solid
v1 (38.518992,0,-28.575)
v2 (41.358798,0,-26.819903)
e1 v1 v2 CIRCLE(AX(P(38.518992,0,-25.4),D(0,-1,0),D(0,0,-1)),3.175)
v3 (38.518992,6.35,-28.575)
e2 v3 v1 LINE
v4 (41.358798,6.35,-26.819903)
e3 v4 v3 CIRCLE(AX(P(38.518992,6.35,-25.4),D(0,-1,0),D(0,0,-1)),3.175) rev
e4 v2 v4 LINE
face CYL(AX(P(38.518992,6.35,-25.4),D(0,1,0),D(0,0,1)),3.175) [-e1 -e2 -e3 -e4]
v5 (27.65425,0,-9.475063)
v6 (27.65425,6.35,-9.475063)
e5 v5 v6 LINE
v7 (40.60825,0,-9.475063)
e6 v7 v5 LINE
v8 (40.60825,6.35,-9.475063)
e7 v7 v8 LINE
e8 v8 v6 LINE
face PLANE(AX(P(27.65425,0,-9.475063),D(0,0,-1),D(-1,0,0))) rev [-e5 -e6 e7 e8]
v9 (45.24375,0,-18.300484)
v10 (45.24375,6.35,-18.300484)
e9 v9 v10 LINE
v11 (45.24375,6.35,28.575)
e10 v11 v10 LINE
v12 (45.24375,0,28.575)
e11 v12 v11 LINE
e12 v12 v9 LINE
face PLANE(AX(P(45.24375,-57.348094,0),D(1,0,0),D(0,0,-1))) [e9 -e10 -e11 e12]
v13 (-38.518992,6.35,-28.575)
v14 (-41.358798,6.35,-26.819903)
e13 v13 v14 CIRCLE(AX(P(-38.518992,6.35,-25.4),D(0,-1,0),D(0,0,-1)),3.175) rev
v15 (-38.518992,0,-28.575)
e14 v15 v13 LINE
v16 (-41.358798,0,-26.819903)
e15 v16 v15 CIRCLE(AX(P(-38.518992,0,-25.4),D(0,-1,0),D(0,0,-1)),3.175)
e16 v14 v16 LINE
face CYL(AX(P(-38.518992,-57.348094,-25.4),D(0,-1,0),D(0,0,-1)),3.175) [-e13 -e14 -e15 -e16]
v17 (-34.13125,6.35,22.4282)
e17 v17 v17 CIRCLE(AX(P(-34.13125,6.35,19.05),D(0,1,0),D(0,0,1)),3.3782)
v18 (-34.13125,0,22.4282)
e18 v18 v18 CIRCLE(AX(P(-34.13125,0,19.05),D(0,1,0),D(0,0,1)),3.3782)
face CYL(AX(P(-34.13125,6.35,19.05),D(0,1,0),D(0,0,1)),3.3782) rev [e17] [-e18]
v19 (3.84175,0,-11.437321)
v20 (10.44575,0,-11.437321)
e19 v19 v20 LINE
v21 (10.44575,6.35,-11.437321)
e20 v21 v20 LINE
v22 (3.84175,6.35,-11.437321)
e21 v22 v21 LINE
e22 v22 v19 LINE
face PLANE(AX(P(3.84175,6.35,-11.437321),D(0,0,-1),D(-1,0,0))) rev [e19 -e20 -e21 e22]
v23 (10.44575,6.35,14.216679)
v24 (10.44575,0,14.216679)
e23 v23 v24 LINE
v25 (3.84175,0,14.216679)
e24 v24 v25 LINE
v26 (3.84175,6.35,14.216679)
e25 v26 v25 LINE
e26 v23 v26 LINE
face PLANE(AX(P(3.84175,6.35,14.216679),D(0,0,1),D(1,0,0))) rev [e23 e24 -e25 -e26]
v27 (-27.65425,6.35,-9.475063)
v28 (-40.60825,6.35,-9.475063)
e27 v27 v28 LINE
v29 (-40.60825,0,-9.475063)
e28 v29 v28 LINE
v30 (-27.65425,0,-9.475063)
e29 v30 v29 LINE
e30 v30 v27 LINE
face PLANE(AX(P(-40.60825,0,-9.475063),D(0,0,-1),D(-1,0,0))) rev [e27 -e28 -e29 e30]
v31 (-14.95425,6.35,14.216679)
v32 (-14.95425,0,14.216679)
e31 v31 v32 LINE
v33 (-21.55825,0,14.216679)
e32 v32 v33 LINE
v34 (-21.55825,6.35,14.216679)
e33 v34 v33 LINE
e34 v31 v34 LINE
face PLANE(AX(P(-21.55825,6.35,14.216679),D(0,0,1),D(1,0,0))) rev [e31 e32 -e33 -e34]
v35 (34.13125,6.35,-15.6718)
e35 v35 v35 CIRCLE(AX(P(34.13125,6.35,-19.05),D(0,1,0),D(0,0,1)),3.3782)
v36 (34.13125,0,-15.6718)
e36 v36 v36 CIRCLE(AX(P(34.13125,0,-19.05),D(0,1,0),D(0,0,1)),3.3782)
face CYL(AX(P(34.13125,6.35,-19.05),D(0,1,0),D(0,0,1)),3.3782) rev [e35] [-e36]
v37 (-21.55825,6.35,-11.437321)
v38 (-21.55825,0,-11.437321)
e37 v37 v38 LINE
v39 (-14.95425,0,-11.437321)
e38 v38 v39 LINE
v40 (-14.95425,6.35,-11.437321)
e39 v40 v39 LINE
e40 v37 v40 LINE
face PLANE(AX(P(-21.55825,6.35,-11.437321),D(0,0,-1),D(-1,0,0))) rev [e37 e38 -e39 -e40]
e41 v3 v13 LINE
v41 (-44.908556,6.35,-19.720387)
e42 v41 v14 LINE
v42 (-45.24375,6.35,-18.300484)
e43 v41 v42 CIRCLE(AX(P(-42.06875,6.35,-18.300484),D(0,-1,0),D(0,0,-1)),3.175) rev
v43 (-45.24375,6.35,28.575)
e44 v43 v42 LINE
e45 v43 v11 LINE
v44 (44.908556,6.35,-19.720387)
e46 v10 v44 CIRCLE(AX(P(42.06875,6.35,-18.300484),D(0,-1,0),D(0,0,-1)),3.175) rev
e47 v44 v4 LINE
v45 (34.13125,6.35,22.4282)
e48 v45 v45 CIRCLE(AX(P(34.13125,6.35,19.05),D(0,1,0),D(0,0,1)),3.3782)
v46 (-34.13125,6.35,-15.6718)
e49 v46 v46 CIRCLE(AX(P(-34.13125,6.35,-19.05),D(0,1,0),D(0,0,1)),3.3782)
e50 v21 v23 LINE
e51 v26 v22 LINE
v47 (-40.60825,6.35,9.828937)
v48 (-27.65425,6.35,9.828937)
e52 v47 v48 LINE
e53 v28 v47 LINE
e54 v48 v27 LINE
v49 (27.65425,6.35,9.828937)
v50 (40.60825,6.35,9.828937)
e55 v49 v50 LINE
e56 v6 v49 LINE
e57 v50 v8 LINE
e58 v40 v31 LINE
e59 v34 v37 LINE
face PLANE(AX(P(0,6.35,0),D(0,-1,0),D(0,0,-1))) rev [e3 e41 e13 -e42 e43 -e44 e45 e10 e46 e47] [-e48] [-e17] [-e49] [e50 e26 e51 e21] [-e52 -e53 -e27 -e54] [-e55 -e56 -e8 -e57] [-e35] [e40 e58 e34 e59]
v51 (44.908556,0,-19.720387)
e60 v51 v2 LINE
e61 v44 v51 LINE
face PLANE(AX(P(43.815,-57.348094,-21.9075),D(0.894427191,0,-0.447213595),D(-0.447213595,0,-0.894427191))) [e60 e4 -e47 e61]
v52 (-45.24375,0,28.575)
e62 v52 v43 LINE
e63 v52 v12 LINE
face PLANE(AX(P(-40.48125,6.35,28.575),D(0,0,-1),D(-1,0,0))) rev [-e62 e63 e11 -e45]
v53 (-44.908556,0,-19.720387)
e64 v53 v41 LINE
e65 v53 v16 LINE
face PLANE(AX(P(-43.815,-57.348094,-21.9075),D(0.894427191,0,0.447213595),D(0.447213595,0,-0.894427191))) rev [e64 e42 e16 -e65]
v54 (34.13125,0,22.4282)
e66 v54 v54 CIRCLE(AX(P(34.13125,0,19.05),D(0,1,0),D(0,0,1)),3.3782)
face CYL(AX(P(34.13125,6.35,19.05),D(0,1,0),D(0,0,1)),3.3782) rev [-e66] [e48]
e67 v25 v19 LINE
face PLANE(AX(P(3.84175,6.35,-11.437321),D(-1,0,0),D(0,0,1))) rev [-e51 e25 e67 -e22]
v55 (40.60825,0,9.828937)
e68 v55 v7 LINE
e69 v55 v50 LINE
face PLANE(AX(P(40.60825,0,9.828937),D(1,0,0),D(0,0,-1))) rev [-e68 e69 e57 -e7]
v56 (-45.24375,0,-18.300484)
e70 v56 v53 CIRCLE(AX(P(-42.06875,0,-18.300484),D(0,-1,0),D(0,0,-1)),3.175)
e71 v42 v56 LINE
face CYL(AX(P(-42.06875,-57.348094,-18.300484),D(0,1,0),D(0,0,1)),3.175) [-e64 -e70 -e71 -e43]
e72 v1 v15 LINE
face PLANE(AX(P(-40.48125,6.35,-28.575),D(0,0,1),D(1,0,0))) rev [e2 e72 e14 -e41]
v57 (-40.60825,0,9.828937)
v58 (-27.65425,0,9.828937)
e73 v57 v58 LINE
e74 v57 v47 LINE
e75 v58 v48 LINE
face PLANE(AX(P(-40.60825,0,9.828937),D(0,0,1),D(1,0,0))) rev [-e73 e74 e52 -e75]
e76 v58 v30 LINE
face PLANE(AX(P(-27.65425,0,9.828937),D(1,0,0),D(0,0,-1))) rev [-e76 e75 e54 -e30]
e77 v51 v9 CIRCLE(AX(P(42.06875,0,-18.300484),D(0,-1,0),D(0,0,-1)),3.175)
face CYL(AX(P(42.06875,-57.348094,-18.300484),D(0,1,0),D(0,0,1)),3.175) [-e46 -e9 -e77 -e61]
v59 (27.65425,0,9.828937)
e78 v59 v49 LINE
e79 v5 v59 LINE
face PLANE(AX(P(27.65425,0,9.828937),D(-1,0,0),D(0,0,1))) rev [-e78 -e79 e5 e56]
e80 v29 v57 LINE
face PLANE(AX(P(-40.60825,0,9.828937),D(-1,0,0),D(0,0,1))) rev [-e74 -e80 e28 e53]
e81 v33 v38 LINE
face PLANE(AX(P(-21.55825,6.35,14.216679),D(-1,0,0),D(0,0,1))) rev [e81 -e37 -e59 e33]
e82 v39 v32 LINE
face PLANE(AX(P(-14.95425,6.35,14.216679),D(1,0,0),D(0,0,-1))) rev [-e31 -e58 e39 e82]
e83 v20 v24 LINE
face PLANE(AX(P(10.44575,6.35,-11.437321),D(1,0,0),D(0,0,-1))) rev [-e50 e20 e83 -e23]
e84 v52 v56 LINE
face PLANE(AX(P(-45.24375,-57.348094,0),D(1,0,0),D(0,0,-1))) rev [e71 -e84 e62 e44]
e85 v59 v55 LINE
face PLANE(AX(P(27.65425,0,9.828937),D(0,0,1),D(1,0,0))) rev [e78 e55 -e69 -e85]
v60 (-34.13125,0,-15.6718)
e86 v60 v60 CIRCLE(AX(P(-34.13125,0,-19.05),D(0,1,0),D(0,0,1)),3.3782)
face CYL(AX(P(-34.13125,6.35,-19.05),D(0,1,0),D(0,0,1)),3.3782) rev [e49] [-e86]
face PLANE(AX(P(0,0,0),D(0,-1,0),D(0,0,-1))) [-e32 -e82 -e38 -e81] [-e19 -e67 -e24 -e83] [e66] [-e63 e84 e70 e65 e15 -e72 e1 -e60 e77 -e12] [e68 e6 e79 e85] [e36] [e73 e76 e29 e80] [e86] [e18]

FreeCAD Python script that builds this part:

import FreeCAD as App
import Part
import Sketcher
Q = App.Units.Quantity


def edges_at(feature, points):
    """Names of the edges that pass closest to the given points."""
    edges = feature.Shape.Edges
    near = lambda p: min(range(len(edges)), key=lambda i: edges[i].distToShape(Part.Vertex(*p))[0])
    return sorted({f"Edge{near(p) + 1}" for p in points})

doc = App.newDocument("Part")
body = doc.addObject("PartDesign::Body", "Body")

# Sketch on XZ plane
sketch1 = body.newObject("Sketcher::SketchObject", "Sketch")
sketch1.AttachmentSupport = (doc.getObject("XZ_Plane"), [""])
sketch1.MapMode = "FlatFace"
sketch1.addGeometry([
    Part.LineSegment(App.Vector(-40, -29, 0), App.Vector(-40, 29, 0)),
    Part.LineSegment(App.Vector(-40, 29, 0), App.Vector(40, 29, 0)),
    Part.LineSegment(App.Vector(40, 29, 0), App.Vector(40, -29, 0)),
    Part.LineSegment(App.Vector(40, -29, 0), App.Vector(-40, -29, 0)),
], False)
sketch1.addConstraint([
    Sketcher.Constraint("Coincident", 0, 2, 1, 1),
    Sketcher.Constraint("Coincident", 1, 2, 2, 1),
    Sketcher.Constraint("Coincident", 2, 2, 3, 1),
    Sketcher.Constraint("Coincident", 3, 2, 0, 1),
    Sketcher.Constraint("Vertical", 0),
    Sketcher.Constraint("Horizontal", 1),
    Sketcher.Constraint("Vertical", 2),
    Sketcher.Constraint("Horizontal", 3),
    Sketcher.Constraint("Symmetric", 0, 2, 2, 2, -1, 1),
    Sketcher.Constraint("DistanceY", 0, 1, 0, 2, Q("2.25 in")),
    Sketcher.Constraint("DistanceX", 1, 1, 1, 2, Q("3.1875 in")),
])
pad1 = body.newObject("PartDesign::Pad", "Pad")
pad1.Profile = sketch1
pad1.Length = Q("0.25 in")
pad1.Reversed = True

# Sketch on XZ plane
sketch2 = body.newObject("Sketcher::SketchObject", "Sketch001")
sketch2.AttachmentSupport = (doc.getObject("XZ_Plane"), [""])
sketch2.MapMode = "FlatFace"
sketch2.addGeometry([
    Part.LineSegment(App.Vector(10, -11, 0), App.Vector(10, 14, 0)),  # 0
    Part.LineSegment(App.Vector(10, 14, 0), App.Vector(4, 14, 0)),  # 1
    Part.LineSegment(App.Vector(4, 14, 0), App.Vector(4, -11, 0)),  # 2
    Part.LineSegment(App.Vector(4, -11, 0), App.Vector(10, -11, 0)),  # 3
    Part.LineSegment(App.Vector(-15, -11, 0), App.Vector(-15, 14, 0)),  # 4
    Part.LineSegment(App.Vector(-15, 14, 0), App.Vector(-22, 14, 0)),  # 5
    Part.LineSegment(App.Vector(-22, 14, 0), App.Vector(-22, -11, 0)),  # 6
    Part.LineSegment(App.Vector(-22, -11, 0), App.Vector(-15, -11, 0)),  # 7
], False)
sketch2.addConstraint([
    Sketcher.Constraint("Coincident", 0, 2, 1, 1),
    Sketcher.Constraint("Coincident", 1, 2, 2, 1),
    Sketcher.Constraint("Coincident", 2, 2, 3, 1),
    Sketcher.Constraint("Coincident", 3, 2, 0, 1),
    Sketcher.Constraint("Coincident", 4, 2, 5, 1),
    Sketcher.Constraint("Coincident", 5, 2, 6, 1),
    Sketcher.Constraint("Coincident", 6, 2, 7, 1),
    Sketcher.Constraint("Coincident", 7, 2, 4, 1),
    Sketcher.Constraint("Vertical", 0),
    Sketcher.Constraint("Horizontal", 1),
    Sketcher.Constraint("Vertical", 2),
    Sketcher.Constraint("Horizontal", 3),
    Sketcher.Constraint("Vertical", 4),
    Sketcher.Constraint("Horizontal", 5),
    Sketcher.Constraint("Vertical", 6),
    Sketcher.Constraint("Horizontal", 7),
    Sketcher.Constraint("Horizontal", 1, 2, 4, 2),
    Sketcher.Constraint("Horizontal", 3, 2, 6, 2),
    Sketcher.Constraint("Equal", 3, 5),
    Sketcher.Constraint("DistanceX", 4, 2, 0, 2, Q("1 in")),
    Sketcher.Constraint("DistanceX", 1, 2, 1, 1, Q("0.26 in")),
    Sketcher.Constraint("DistanceY", 0, 1, 0, 2, Q("1.01 in")),
    Sketcher.Constraint("DistanceX", -1, 1, 0, 2, 10.44575),
    Sketcher.Constraint("DistanceY", -1, 1, 0, 2, 14.216679),
])
pocket1 = body.newObject("PartDesign::Pocket", "Pocket")
pocket1.Profile = sketch2
pocket1.Type = "ThroughAll"

# Sketch on XZ plane
sketch3 = body.newObject("Sketcher::SketchObject", "Sketch002")
sketch3.AttachmentSupport = (doc.getObject("XZ_Plane"), [""])
sketch3.MapMode = "FlatFace"
sketch3.AttachmentOffset = App.Placement(App.Vector(0, 0, -0.25 * 25.4), App.Rotation())
sketch3.addGeometry([
    Part.Circle(App.Vector(-34.1, -19.1, 0), App.Vector(0, 0, 1), 3.4),
    Part.Circle(App.Vector(-34.1, 19.1, 0), App.Vector(0, 0, 1), 3.4),
    Part.Circle(App.Vector(34.1, 19.1, 0), App.Vector(0, 0, 1), 3.4),
    Part.Circle(App.Vector(34.1, -19.1, 0), App.Vector(0, 0, 1), 3.4),
], False)
sketch3.addConstraint([
    Sketcher.Constraint("Equal", 0, 1),
    Sketcher.Constraint("Equal", 1, 2),
    Sketcher.Constraint("Equal", 2, 3),
    Sketcher.Constraint("Symmetric", 0, 3, 2, 3, -1, 1),
    Sketcher.Constraint("Symmetric", 1, 3, 3, 3, -1, 1),
    Sketcher.Constraint("Symmetric", 1, 3, 2, 3, -2),
    Sketcher.Constraint("Diameter", 0, Q("0.266 in")),
    Sketcher.Constraint("DistanceY", 0, 3, 1, 3, Q("1.5 in")),
    Sketcher.Constraint("DistanceX", 0, 3, -1, 1, Q("1.34375 in")),
])
doc.recompute()
hole = body.newObject("PartDesign::Hole", "Hole")
hole.Profile = sketch3
hole.ThreadType = "None"
hole.Diameter = Q("0.266 in")
hole.DepthType = "ThroughAll"
hole.Reversed = True

# Sketch on XZ plane
sketch4 = body.newObject("Sketcher::SketchObject", "Sketch003")
sketch4.AttachmentSupport = (doc.getObject("XZ_Plane"), [""])
sketch4.MapMode = "FlatFace"
sketch4.AttachmentOffset = App.Placement(App.Vector(0, 0, -0.25 * 25.4), App.Rotation())
sketch4.addGeometry([
    Part.LineSegment(App.Vector(40.5, 28.6, 0), App.Vector(45.2, 28.6, 0)),  # 0
    Part.LineSegment(App.Vector(45.2, 28.6, 0), App.Vector(45.2, -19.1, 0)),  # 1
    Part.LineSegment(App.Vector(45.2, -19.1, 0), App.Vector(40.5, -28.6, 0)),  # 2
    Part.LineSegment(App.Vector(40.5, -28.6, 0), App.Vector(40.5, 28.6, 0)),  # 3
    Part.LineSegment(App.Vector(-45.2, -19.1, 0), App.Vector(-45.2, 28.6, 0)),  # 4
    Part.LineSegment(App.Vector(-45.2, 28.6, 0), App.Vector(-40.5, 28.6, 0)),  # 5
    Part.LineSegment(App.Vector(-40.5, 28.6, 0), App.Vector(-40.5, -28.6, 0)),  # 6
    Part.LineSegment(App.Vector(-40.5, -28.6, 0), App.Vector(-45.2, -19.1, 0)),  # 7
], False)
sketch4.addConstraint([
    Sketcher.Constraint("Coincident", 0, 2, 1, 1),
    Sketcher.Constraint("Coincident", 1, 2, 2, 1),
    Sketcher.Constraint("Coincident", 2, 2, 3, 1),
    Sketcher.Constraint("Coincident", 3, 2, 0, 1),
    Sketcher.Constraint("Coincident", 4, 2, 5, 1),
    Sketcher.Constraint("Coincident", 5, 2, 6, 1),
    Sketcher.Constraint("Coincident", 6, 2, 7, 1),
    Sketcher.Constraint("Coincident", 7, 2, 4, 1),
    Sketcher.Constraint("Horizontal", 0),
    Sketcher.Constraint("Vertical", 1),
    Sketcher.Constraint("Vertical", 3),
    Sketcher.Constraint("Vertical", 4),
    Sketcher.Constraint("Horizontal", 5),
    Sketcher.Constraint("Vertical", 6),
    Sketcher.Constraint("Symmetric", 2, 2, 5, 2, -1, 1),
    Sketcher.Constraint("Symmetric", 0, 2, 4, 2, -2),
    Sketcher.Constraint("Horizontal", 2, 2, 6, 2),
    Sketcher.Constraint("Horizontal", 1, 2, 7, 2),
    Sketcher.Constraint("DistanceY", 3, 1, 3, 2, Q("2.25 in")),
    Sketcher.Constraint("DistanceX", 0, 1, 0, 2, Q("0.1875 in")),
    Sketcher.Constraint("DistanceY", 1, 2, 1, 1, Q("1.875 in")),
    Sketcher.Constraint("DistanceX", -1, 1, 0, 2, Q("1.78125 in")),
])
pad2 = body.newObject("PartDesign::Pad", "Pad001")
pad2.Profile = sketch4
pad2.Length = Q("0.25 in")
doc.recompute()

fillet = body.newObject("PartDesign::Fillet", "Fillet")
fillet.Base = (pad2, edges_at(pad2, [
    (-40.481, 3.175, -28.575),
    (40.481, 3.175, -28.575),
    (45.244, 3.175, -19.05),
    (-45.244, 3.175, -19.05),
]))
fillet.Radius = Q("0.125 in")

# Sketch on XZ plane
sketch5 = body.newObject("Sketcher::SketchObject", "Sketch004")
sketch5.AttachmentSupport = (doc.getObject("XZ_Plane"), [""])
sketch5.MapMode = "FlatFace"
sketch5.AttachmentOffset = App.Placement(App.Vector(0, 0, -0.25 * 25.4), App.Rotation())
sketch5.addGeometry([
    Part.LineSegment(App.Vector(-41, -9, 0), App.Vector(-41, 10, 0)),  # 0
    Part.LineSegment(App.Vector(-41, 10, 0), App.Vector(-28, 10, 0)),  # 1
    Part.LineSegment(App.Vector(-28, 10, 0), App.Vector(-28, -9, 0)),  # 2
    Part.LineSegment(App.Vector(-28, -9, 0), App.Vector(-41, -9, 0)),  # 3
    Part.LineSegment(App.Vector(28, -9, 0), App.Vector(28, 10, 0)),  # 4
    Part.LineSegment(App.Vector(28, 10, 0), App.Vector(41, 10, 0)),  # 5
    Part.LineSegment(App.Vector(41, 10, 0), App.Vector(41, -9, 0)),  # 6
    Part.LineSegment(App.Vector(41, -9, 0), App.Vector(28, -9, 0)),  # 7
], False)
sketch5.addConstraint([
    Sketcher.Constraint("Coincident", 0, 2, 1, 1),
    Sketcher.Constraint("Coincident", 1, 2, 2, 1),
    Sketcher.Constraint("Coincident", 2, 2, 3, 1),
    Sketcher.Constraint("Coincident", 3, 2, 0, 1),
    Sketcher.Constraint("Coincident", 4, 2, 5, 1),
    Sketcher.Constraint("Coincident", 5, 2, 6, 1),
    Sketcher.Constraint("Coincident", 6, 2, 7, 1),
    Sketcher.Constraint("Coincident", 7, 2, 4, 1),
    Sketcher.Constraint("Vertical", 0),
    Sketcher.Constraint("Horizontal", 1),
    Sketcher.Constraint("Vertical", 2),
    Sketcher.Constraint("Horizontal", 3),
    Sketcher.Constraint("Vertical", 4),
    Sketcher.Constraint("Horizontal", 5),
    Sketcher.Constraint("Vertical", 6),
    Sketcher.Constraint("Horizontal", 7),
    Sketcher.Constraint("Symmetric", 1, 2, 4, 2, -2),
    Sketcher.Constraint("Symmetric", 3, 2, 6, 2, -2),
    Sketcher.Constraint("DistanceX", 1, 1, 1, 2, Q("0.51 in")),
    Sketcher.Constraint("DistanceY", 0, 1, 0, 2, Q("0.76 in")),
    Sketcher.Constraint("DistanceX", 0, 2, 4, 2, Q("2.6875 in")),
    Sketcher.Constraint("DistanceY", -1, 1, 0, 2, 9.828937),
])
pocket2 = body.newObject("PartDesign::Pocket", "Pocket001")
pocket2.Profile = sketch5
pocket2.Type = "ThroughAll"
pocket2.Reversed = True

doc.recompute()
